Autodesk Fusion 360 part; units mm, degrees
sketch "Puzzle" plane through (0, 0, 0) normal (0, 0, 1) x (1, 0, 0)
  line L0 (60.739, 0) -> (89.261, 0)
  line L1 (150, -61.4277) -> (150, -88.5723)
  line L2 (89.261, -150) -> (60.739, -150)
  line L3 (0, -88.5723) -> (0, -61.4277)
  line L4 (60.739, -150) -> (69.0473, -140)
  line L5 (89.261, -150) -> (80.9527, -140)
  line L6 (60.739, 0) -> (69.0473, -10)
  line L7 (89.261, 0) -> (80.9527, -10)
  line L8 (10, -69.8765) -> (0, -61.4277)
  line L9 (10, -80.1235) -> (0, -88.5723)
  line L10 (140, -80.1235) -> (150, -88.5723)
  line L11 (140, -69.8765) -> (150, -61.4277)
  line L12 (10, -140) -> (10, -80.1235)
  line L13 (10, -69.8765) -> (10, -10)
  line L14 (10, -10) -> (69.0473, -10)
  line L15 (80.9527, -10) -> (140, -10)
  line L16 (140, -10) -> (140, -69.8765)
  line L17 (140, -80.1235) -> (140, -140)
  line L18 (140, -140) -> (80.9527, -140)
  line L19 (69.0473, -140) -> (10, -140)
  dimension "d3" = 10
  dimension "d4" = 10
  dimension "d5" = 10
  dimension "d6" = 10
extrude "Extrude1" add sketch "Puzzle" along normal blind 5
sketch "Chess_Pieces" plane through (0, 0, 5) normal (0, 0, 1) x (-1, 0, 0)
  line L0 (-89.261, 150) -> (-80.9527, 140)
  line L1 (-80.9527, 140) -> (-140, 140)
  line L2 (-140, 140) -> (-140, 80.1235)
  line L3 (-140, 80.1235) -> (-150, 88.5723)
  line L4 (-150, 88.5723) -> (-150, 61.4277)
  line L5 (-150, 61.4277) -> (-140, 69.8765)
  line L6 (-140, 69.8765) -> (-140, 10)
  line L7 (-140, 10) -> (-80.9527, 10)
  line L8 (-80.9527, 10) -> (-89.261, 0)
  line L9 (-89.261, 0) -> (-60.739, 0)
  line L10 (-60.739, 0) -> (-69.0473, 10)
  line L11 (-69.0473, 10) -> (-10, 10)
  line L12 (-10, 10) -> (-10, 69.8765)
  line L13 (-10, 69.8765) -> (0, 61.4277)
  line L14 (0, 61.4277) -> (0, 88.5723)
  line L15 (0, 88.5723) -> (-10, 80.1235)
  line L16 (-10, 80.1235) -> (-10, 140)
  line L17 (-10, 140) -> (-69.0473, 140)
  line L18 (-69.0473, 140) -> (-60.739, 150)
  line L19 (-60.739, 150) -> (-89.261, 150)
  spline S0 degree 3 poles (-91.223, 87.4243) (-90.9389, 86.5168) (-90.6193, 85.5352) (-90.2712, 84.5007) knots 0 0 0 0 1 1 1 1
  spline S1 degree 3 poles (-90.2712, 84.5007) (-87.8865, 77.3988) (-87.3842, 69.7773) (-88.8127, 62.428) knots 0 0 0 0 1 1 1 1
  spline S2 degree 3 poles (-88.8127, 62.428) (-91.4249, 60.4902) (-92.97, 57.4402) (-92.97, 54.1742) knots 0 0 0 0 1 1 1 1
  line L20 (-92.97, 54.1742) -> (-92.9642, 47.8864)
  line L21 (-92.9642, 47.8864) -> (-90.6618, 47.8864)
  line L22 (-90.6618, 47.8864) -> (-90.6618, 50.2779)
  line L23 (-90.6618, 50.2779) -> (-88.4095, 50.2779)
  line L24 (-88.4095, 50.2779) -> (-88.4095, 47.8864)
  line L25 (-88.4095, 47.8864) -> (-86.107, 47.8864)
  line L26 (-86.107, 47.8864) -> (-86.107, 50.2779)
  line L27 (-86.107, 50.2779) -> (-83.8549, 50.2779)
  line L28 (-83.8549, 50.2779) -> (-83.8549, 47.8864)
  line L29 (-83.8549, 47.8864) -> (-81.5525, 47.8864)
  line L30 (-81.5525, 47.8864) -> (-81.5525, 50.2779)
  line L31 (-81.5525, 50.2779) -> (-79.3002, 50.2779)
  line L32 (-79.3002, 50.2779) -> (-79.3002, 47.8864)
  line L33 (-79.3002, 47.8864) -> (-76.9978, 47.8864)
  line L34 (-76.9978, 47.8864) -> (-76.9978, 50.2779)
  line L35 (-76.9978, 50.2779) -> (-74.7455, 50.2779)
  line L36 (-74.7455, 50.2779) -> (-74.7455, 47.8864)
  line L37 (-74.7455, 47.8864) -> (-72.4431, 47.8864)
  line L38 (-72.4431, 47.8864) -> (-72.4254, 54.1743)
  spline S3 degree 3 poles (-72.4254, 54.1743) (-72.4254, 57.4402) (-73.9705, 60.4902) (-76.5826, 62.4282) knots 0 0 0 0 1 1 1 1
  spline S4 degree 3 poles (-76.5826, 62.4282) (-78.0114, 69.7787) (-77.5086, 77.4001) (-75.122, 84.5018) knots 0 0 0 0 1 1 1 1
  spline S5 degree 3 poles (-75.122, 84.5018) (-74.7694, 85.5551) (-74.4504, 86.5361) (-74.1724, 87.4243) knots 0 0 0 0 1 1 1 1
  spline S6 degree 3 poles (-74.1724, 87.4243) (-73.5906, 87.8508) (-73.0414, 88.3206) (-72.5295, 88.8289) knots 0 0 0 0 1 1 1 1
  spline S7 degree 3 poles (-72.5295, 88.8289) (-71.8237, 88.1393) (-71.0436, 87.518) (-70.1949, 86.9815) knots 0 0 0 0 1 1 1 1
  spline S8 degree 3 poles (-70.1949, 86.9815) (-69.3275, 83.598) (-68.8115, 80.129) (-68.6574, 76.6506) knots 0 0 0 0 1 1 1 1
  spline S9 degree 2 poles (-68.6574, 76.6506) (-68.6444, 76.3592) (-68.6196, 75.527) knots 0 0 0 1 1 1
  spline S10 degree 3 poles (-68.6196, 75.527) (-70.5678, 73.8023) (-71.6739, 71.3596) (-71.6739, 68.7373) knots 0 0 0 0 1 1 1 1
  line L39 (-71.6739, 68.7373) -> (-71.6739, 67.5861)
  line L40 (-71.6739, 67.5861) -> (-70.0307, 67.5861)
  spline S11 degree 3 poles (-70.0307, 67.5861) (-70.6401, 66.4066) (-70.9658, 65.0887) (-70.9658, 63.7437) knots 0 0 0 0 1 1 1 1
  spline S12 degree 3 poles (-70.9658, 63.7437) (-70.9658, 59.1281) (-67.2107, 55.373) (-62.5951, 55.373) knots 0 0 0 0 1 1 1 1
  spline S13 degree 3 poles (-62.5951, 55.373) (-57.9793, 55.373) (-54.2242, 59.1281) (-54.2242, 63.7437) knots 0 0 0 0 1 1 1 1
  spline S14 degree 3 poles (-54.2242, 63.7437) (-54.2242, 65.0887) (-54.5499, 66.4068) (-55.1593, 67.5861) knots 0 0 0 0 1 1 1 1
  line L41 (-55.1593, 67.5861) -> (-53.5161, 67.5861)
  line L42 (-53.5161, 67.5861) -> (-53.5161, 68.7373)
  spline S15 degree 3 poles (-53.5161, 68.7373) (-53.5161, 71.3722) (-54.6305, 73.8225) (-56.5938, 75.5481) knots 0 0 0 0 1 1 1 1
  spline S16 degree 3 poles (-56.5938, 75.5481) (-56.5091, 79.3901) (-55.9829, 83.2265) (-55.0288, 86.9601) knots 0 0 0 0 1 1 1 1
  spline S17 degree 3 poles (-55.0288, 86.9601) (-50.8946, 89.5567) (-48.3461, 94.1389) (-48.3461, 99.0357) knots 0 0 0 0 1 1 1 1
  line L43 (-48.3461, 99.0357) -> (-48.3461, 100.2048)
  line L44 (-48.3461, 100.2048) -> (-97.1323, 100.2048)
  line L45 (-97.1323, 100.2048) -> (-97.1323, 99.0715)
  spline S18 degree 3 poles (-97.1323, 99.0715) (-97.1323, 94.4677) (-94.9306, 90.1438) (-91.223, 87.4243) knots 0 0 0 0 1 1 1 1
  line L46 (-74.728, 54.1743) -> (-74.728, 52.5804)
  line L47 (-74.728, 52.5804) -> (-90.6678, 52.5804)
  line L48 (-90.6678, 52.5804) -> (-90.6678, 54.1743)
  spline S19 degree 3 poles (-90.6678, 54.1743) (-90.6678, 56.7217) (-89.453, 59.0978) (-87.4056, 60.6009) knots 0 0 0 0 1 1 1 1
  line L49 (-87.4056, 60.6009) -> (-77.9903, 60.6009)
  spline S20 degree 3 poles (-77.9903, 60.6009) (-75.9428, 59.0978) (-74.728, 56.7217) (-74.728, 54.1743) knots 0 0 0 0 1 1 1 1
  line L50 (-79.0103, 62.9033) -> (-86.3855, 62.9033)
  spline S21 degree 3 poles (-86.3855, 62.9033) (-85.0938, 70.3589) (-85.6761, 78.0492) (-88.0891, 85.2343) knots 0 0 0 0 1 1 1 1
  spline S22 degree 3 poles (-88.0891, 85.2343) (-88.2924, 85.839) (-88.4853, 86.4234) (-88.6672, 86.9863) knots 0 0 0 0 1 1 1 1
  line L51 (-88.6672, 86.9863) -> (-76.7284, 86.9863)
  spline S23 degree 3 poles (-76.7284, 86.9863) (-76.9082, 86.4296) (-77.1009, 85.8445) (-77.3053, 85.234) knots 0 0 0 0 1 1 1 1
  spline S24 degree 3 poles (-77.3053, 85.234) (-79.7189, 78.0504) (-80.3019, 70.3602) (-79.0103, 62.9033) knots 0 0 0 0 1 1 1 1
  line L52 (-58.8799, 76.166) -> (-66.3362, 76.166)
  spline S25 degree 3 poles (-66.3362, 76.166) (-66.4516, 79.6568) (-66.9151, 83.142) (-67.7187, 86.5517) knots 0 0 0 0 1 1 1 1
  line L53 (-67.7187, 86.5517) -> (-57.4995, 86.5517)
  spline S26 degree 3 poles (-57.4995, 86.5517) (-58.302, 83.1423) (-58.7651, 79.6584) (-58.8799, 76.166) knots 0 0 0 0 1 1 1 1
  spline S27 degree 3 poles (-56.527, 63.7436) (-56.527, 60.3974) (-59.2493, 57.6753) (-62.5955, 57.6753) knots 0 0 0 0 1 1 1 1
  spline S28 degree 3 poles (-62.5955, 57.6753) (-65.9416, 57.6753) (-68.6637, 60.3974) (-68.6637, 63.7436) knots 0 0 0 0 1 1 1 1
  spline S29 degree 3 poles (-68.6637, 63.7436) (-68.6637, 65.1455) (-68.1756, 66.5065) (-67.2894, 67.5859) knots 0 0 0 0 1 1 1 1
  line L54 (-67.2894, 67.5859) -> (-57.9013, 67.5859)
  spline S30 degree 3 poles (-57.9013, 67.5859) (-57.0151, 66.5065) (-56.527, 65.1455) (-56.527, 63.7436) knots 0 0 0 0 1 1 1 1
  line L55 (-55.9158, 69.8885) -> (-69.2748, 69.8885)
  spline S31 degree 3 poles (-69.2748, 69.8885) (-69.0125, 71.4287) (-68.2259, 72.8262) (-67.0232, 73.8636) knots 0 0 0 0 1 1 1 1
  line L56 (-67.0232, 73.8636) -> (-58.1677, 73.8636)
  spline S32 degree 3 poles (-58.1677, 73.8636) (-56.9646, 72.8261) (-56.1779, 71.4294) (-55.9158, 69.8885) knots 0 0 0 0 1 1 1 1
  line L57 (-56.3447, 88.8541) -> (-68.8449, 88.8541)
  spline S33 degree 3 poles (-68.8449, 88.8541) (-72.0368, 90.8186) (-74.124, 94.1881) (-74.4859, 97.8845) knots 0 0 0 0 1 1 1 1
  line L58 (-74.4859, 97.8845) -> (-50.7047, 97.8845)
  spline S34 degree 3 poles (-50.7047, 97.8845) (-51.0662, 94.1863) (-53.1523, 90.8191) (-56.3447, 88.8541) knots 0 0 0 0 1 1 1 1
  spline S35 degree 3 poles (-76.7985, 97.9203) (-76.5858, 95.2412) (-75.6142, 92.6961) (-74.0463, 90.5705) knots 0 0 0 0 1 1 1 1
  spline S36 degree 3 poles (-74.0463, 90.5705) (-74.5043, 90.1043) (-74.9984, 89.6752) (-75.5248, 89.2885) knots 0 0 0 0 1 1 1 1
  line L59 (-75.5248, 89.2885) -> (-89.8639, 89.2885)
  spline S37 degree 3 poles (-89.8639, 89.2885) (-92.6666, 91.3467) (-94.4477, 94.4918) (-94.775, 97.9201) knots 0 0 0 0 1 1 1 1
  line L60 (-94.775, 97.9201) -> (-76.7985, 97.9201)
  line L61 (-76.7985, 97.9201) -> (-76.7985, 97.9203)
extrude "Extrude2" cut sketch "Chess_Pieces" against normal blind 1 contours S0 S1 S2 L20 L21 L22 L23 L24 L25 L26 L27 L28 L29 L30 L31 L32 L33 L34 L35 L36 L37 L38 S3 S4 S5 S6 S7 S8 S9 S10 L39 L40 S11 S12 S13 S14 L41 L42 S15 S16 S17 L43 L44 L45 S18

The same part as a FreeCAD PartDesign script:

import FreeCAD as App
import Part
import Sketcher

V = App.Vector
Q = App.Units.Quantity

doc = App.newDocument("Part")
body = doc.addObject("PartDesign::Body", "Body")

# Sketch on XY plane
sketch1 = body.newObject("Sketcher::SketchObject", "Sketch")
sketch1.AttachmentSupport = (doc.getObject("XY_Plane"), [""])
sketch1.MapMode = "FlatFace"
sketch1.addGeometry(Part.LineSegment(V(89, 0, 0), V(61, 0, 0)), False)
sketch1.addGeometry(Part.LineSegment(V(61, 0, 0), V(69, -10, 0)), False)
sketch1.addGeometry(Part.LineSegment(V(69, -10, 0), V(10, -10, 0)), False)
sketch1.addGeometry(Part.LineSegment(V(10, -10, 0), V(10, -70, 0)), False)
sketch1.addGeometry(Part.LineSegment(V(10, -70, 0), V(0, -61, 0)), False)
sketch1.addGeometry(Part.LineSegment(V(0, -61, 0), V(0, -89, 0)), False)
sketch1.addGeometry(Part.LineSegment(V(0, -89, 0), V(10, -80, 0)), False)
sketch1.addGeometry(Part.LineSegment(V(10, -80, 0), V(10, -140, 0)), False)
sketch1.addGeometry(Part.LineSegment(V(10, -140, 0), V(69, -140, 0)), False)
sketch1.addGeometry(Part.LineSegment(V(69, -140, 0), V(61, -150, 0)), False)
sketch1.addGeometry(Part.LineSegment(V(61, -150, 0), V(89, -150, 0)), False)
sketch1.addGeometry(Part.LineSegment(V(89, -150, 0), V(81, -140, 0)), False)
sketch1.addGeometry(Part.LineSegment(V(81, -140, 0), V(140, -140, 0)), False)
sketch1.addGeometry(Part.LineSegment(V(140, -140, 0), V(140, -80, 0)), False)
sketch1.addGeometry(Part.LineSegment(V(140, -80, 0), V(150, -89, 0)), False)
sketch1.addGeometry(Part.LineSegment(V(150, -89, 0), V(150, -61, 0)), False)
sketch1.addGeometry(Part.LineSegment(V(150, -61, 0), V(140, -70, 0)), False)
sketch1.addGeometry(Part.LineSegment(V(140, -70, 0), V(140, -10, 0)), False)
sketch1.addGeometry(Part.LineSegment(V(140, -10, 0), V(81, -10, 0)), False)
sketch1.addGeometry(Part.LineSegment(V(81, -10, 0), V(89, 0, 0)), False)
sketch1.addConstraint(Sketcher.Constraint("Coincident", 0, 2, 1, 1))
sketch1.addConstraint(Sketcher.Constraint("Coincident", 1, 2, 2, 1))
sketch1.addConstraint(Sketcher.Constraint("Coincident", 2, 2, 3, 1))
sketch1.addConstraint(Sketcher.Constraint("Coincident", 3, 2, 4, 1))
sketch1.addConstraint(Sketcher.Constraint("Coincident", 4, 2, 5, 1))
sketch1.addConstraint(Sketcher.Constraint("Coincident", 5, 2, 6, 1))
sketch1.addConstraint(Sketcher.Constraint("Coincident", 6, 2, 7, 1))
sketch1.addConstraint(Sketcher.Constraint("Coincident", 7, 2, 8, 1))
sketch1.addConstraint(Sketcher.Constraint("Coincident", 8, 2, 9, 1))
sketch1.addConstraint(Sketcher.Constraint("Coincident", 9, 2, 10, 1))
sketch1.addConstraint(Sketcher.Constraint("Coincident", 10, 2, 11, 1))
sketch1.addConstraint(Sketcher.Constraint("Coincident", 11, 2, 12, 1))
sketch1.addConstraint(Sketcher.Constraint("Coincident", 12, 2, 13, 1))
sketch1.addConstraint(Sketcher.Constraint("Coincident", 13, 2, 14, 1))
sketch1.addConstraint(Sketcher.Constraint("Coincident", 14, 2, 15, 1))
sketch1.addConstraint(Sketcher.Constraint("Coincident", 15, 2, 16, 1))
sketch1.addConstraint(Sketcher.Constraint("Coincident", 16, 2, 17, 1))
sketch1.addConstraint(Sketcher.Constraint("Coincident", 17, 2, 18, 1))
sketch1.addConstraint(Sketcher.Constraint("Coincident", 18, 2, 19, 1))
sketch1.addConstraint(Sketcher.Constraint("Coincident", 19, 2, 0, 1))
sketch1.addConstraint(Sketcher.Constraint("Horizontal", 0))
sketch1.addConstraint(Sketcher.Constraint("Horizontal", 2))
sketch1.addConstraint(Sketcher.Constraint("Vertical", 3))
sketch1.addConstraint(Sketcher.Constraint("Vertical", 5))
sketch1.addConstraint(Sketcher.Constraint("Vertical", 7))
sketch1.addConstraint(Sketcher.Constraint("Horizontal", 8))
sketch1.addConstraint(Sketcher.Constraint("Horizontal", 10))
sketch1.addConstraint(Sketcher.Constraint("Horizontal", 12))
sketch1.addConstraint(Sketcher.Constraint("Vertical", 13))
sketch1.addConstraint(Sketcher.Constraint("Vertical", 15))
sketch1.addConstraint(Sketcher.Constraint("Vertical", 17))
sketch1.addConstraint(Sketcher.Constraint("Horizontal", 18))
sketch1.addConstraint(Sketcher.Constraint("PointOnObject", 0, 2, -1))
sketch1.addConstraint(Sketcher.Constraint("PointOnObject", 4, 2, -2))
sketch1.addConstraint(Sketcher.Constraint("Parallel", 1, 11))
sketch1.addConstraint(Sketcher.Constraint("Parallel", 4, 14))
sketch1.addConstraint(Sketcher.Constraint("Parallel", 6, 16))
sketch1.addConstraint(Sketcher.Constraint("Parallel", 9, 19))
sketch1.addConstraint(Sketcher.Constraint("Horizontal", 8, 2, 11, 2))
sketch1.addConstraint(Sketcher.Constraint("Horizontal", 6, 2, 13, 2))
sketch1.addConstraint(Sketcher.Constraint("Horizontal", 5, 2, 14, 2))
sketch1.addConstraint(Sketcher.Constraint("Horizontal", 4, 2, 15, 2))
sketch1.addConstraint(Sketcher.Constraint("Horizontal", 3, 2, 16, 2))
sketch1.addConstraint(Sketcher.Constraint("Horizontal", 2, 2, 17, 2))
sketch1.addConstraint(Sketcher.Constraint("Vertical", 3, 2, 6, 2))
sketch1.addConstraint(Sketcher.Constraint("Vertical", 1, 2, 8, 2))
sketch1.addConstraint(Sketcher.Constraint("Vertical", 0, 2, 9, 2))
sketch1.addConstraint(Sketcher.Constraint("Vertical", 13, 2, 16, 2))
sketch1.addConstraint(Sketcher.Constraint("Vertical", 11, 2, 18, 2))
sketch1.addConstraint(Sketcher.Constraint("Vertical", 10, 2, 19, 2))
sketch1.addConstraint(Sketcher.Constraint("Equal", 8, 12))
sketch1.addConstraint(Sketcher.Constraint("Equal", 3, 7))
sketch1.addConstraint(Sketcher.Constraint("DistanceY", 1, 2, -1, 1, 10.0))
sketch1.addConstraint(Sketcher.Constraint("DistanceX", -1, 1, 2, 2, 10.0))
sketch1.addConstraint(Sketcher.Constraint("DistanceY", 7, 2, -1, 1, 140.0))
sketch1.addConstraint(Sketcher.Constraint("DistanceX", -1, 1, 12, 2, 140.0))
sketch1.addConstraint(Sketcher.Constraint("Angle", 1, Q("-50.2792 deg")))
sketch1.addConstraint(Sketcher.Constraint("DistanceX", 0, 2, 0, 1, 28.522))
sketch1.addConstraint(Sketcher.Constraint("DistanceY", 3, 2, 3, 1, 59.8765))
sketch1.addConstraint(Sketcher.Constraint("DistanceY", 5, 2, 5, 1, 27.1446))
pad1 = body.newObject("PartDesign::Pad", "Pad")
pad1.Profile = sketch1
pad1.Length = 5

# Sketch on XY plane
sketch2 = body.newObject("Sketcher::SketchObject", "Sketch001")
sketch2.AttachmentSupport = (doc.getObject("XY_Plane"), [""])
sketch2.MapMode = "FlatFace"
sketch2.AttachmentOffset = App.Placement(V(0, 0, 5), App.Rotation())
sketch2.addGeometry(Part.BSplineCurve([V(97.1323, -99.0715, 0), V(97.1323, -94.4677, 0), V(94.9306, -90.1438, 0), V(91.223, -87.4243, 0)], [4, 4], [0, 1], False, 3, [1, 1, 1, 1], False), False)
sketch2.addGeometry(Part.BSplineCurve([V(91.223, -87.4243, 0), V(90.9389, -86.5168, 0), V(90.6193, -85.5352, 0), V(90.2712, -84.5007, 0)], [4, 4], [0, 1], False, 3, [1, 1, 1, 1], False), False)
sketch2.addGeometry(Part.BSplineCurve([V(90.2712, -84.5007, 0), V(87.8865, -77.3988, 0), V(87.3842, -69.7773, 0), V(88.8127, -62.428, 0)], [4, 4], [0, 1], False, 3, [1, 1, 1, 1], False), False)
sketch2.addGeometry(Part.BSplineCurve([V(88.8127, -62.428, 0), V(91.4249, -60.4902, 0), V(92.97, -57.4402, 0), V(92.97, -54.1742, 0)], [4, 4], [0, 1], False, 3, [1, 1, 1, 1], False), False)
sketch2.addGeometry(Part.LineSegment(V(92.97, -54.1742, 0), V(92.9642, -47.8864, 0)), False)
sketch2.addGeometry(Part.LineSegment(V(92.9642, -47.8864, 0), V(90.6618, -47.8864, 0)), False)
sketch2.addGeometry(Part.LineSegment(V(90.6618, -47.8864, 0), V(90.6618, -50.2779, 0)), False)
sketch2.addGeometry(Part.LineSegment(V(90.6618, -50.2779, 0), V(88.4095, -50.2779, 0)), False)
sketch2.addGeometry(Part.LineSegment(V(88.4095, -50.2779, 0), V(88.4095, -47.8864, 0)), False)
sketch2.addGeometry(Part.LineSegment(V(88.4095, -47.8864, 0), V(86.107, -47.8864, 0)), False)
sketch2.addGeometry(Part.LineSegment(V(86.107, -47.8864, 0), V(86.107, -50.2779, 0)), False)
sketch2.addGeometry(Part.LineSegment(V(86.107, -50.2779, 0), V(83.8549, -50.2779, 0)), False)
sketch2.addGeometry(Part.LineSegment(V(83.8549, -50.2779, 0), V(83.8549, -47.8864, 0)), False)
sketch2.addGeometry(Part.LineSegment(V(83.8549, -47.8864, 0), V(81.5525, -47.8864, 0)), False)
sketch2.addGeometry(Part.LineSegment(V(81.5525, -47.8864, 0), V(81.5525, -50.2779, 0)), False)
sketch2.addGeometry(Part.LineSegment(V(81.5525, -50.2779, 0), V(79.3002, -50.2779, 0)), False)
sketch2.addGeometry(Part.LineSegment(V(79.3002, -50.2779, 0), V(79.3002, -47.8864, 0)), False)
sketch2.addGeometry(Part.LineSegment(V(79.3002, -47.8864, 0), V(76.9978, -47.8864, 0)), False)
sketch2.addGeometry(Part.LineSegment(V(76.9978, -47.8864, 0), V(76.9978, -50.2779, 0)), False)
sketch2.addGeometry(Part.LineSegment(V(76.9978, -50.2779, 0), V(74.7455, -50.2779, 0)), False)
sketch2.addGeometry(Part.LineSegment(V(74.7455, -50.2779, 0), V(74.7455, -47.8864, 0)), False)
sketch2.addGeometry(Part.LineSegment(V(74.7455, -47.8864, 0), V(72.4431, -47.8864, 0)), False)
sketch2.addGeometry(Part.LineSegment(V(72.4431, -47.8864, 0), V(72.4254, -54.1743, 0)), False)
sketch2.addGeometry(Part.BSplineCurve([V(72.4254, -54.1743, 0), V(72.4254, -57.4402, 0), V(73.9705, -60.4902, 0), V(76.5826, -62.4282, 0)], [4, 4], [0, 1], False, 3, [1, 1, 1, 1], False), False)
sketch2.addGeometry(Part.BSplineCurve([V(76.5826, -62.4282, 0), V(78.0114, -69.7787, 0), V(77.5086, -77.4001, 0), V(75.122, -84.5018, 0)], [4, 4], [0, 1], False, 3, [1, 1, 1, 1], False), False)
sketch2.addGeometry(Part.BSplineCurve([V(75.122, -84.5018, 0), V(74.7694, -85.5551, 0), V(74.4504, -86.5361, 0), V(74.1724, -87.4243, 0)], [4, 4], [0, 1], False, 3, [1, 1, 1, 1], False), False)
sketch2.addGeometry(Part.BSplineCurve([V(74.1724, -87.4243, 0), V(73.5906, -87.8508, 0), V(73.0414, -88.3206, 0), V(72.5295, -88.8289, 0)], [4, 4], [0, 1], False, 3, [1, 1, 1, 1], False), False)
sketch2.addGeometry(Part.BSplineCurve([V(72.5295, -88.8289, 0), V(71.8237, -88.1393, 0), V(71.0436, -87.518, 0), V(70.1949, -86.9815, 0)], [4, 4], [0, 1], False, 3, [1, 1, 1, 1], False), False)
sketch2.addGeometry(Part.BSplineCurve([V(70.1949, -86.9815, 0), V(69.3275, -83.598, 0), V(68.8115, -80.129, 0), V(68.6574, -76.6506, 0)], [4, 4], [0, 1], False, 3, [1, 1, 1, 1], False), False)
sketch2.addGeometry(Part.BSplineCurve([V(68.6574, -76.6506, 0), V(68.6444, -76.3592, 0), V(68.6196, -75.527, 0)], [3, 3], [0, 1], False, 2, [1, 1, 1], False), False)
sketch2.addGeometry(Part.BSplineCurve([V(68.6196, -75.527, 0), V(70.5678, -73.8023, 0), V(71.6739, -71.3596, 0), V(71.6739, -68.7373, 0)], [4, 4], [0, 1], False, 3, [1, 1, 1, 1], False), False)
sketch2.addGeometry(Part.LineSegment(V(71.6739, -68.7373, 0), V(71.6739, -67.5861, 0)), False)
sketch2.addGeometry(Part.LineSegment(V(71.6739, -67.5861, 0), V(70.0307, -67.5861, 0)), False)
sketch2.addGeometry(Part.BSplineCurve([V(70.0307, -67.5861, 0), V(70.6401, -66.4066, 0), V(70.9658, -65.0887, 0), V(70.9658, -63.7437, 0)], [4, 4], [0, 1], False, 3, [1, 1, 1, 1], False), False)
sketch2.addGeometry(Part.BSplineCurve([V(70.9658, -63.7437, 0), V(70.9658, -59.1281, 0), V(67.2107, -55.373, 0), V(62.5951, -55.373, 0)], [4, 4], [0, 1], False, 3, [1, 1, 1, 1], False), False)
sketch2.addGeometry(Part.BSplineCurve([V(62.5951, -55.373, 0), V(57.9793, -55.373, 0), V(54.2242, -59.1281, 0), V(54.2242, -63.7437, 0)], [4, 4], [0, 1], False, 3, [1, 1, 1, 1], False), False)
sketch2.addGeometry(Part.BSplineCurve([V(54.2242, -63.7437, 0), V(54.2242, -65.0887, 0), V(54.5499, -66.4068, 0), V(55.1593, -67.5861, 0)], [4, 4], [0, 1], False, 3, [1, 1, 1, 1], False), False)
sketch2.addGeometry(Part.LineSegment(V(55.1593, -67.5861, 0), V(53.5161, -67.5861, 0)), False)
sketch2.addGeometry(Part.LineSegment(V(53.5161, -67.5861, 0), V(53.5161, -68.7373, 0)), False)
sketch2.addGeometry(Part.BSplineCurve([V(53.5161, -68.7373, 0), V(53.5161, -71.3722, 0), V(54.6305, -73.8225, 0), V(56.5938, -75.5481, 0)], [4, 4], [0, 1], False, 3, [1, 1, 1, 1], False), False)
sketch2.addGeometry(Part.BSplineCurve([V(56.5938, -75.5481, 0), V(56.5091, -79.3901, 0), V(55.9829, -83.2265, 0), V(55.0288, -86.9601, 0)], [4, 4], [0, 1], False, 3, [1, 1, 1, 1], False), False)
sketch2.addGeometry(Part.BSplineCurve([V(55.0288, -86.9601, 0), V(50.8946, -89.5567, 0), V(48.3461, -94.1389, 0), V(48.3461, -99.0357, 0)], [4, 4], [0, 1], False, 3, [1, 1, 1, 1], False), False)
sketch2.addGeometry(Part.LineSegment(V(48.3461, -99.0357, 0), V(48.3461, -100.2048, 0)), False)
sketch2.addGeometry(Part.LineSegment(V(48.3461, -100.2048, 0), V(97.1323, -100.2048, 0)), False)
sketch2.addGeometry(Part.LineSegment(V(97.1323, -100.2048, 0), V(97.1323, -99.0715, 0)), False)
sketch2.addGeometry(Part.BSplineCurve([V(77.9903, -60.6009, 0), V(75.9428, -59.0978, 0), V(74.728, -56.7217, 0), V(74.728, -54.1743, 0)], [4, 4], [0, 1], False, 3, [1, 1, 1, 1], False), False)
sketch2.addGeometry(Part.LineSegment(V(74.728, -54.1743, 0), V(74.728, -52.5804, 0)), False)
sketch2.addGeometry(Part.LineSegment(V(74.728, -52.5804, 0), V(90.6678, -52.5804, 0)), False)
sketch2.addGeometry(Part.LineSegment(V(90.6678, -52.5804, 0), V(90.6678, -54.1743, 0)), False)
sketch2.addGeometry(Part.BSplineCurve([V(90.6678, -54.1743, 0), V(90.6678, -56.7217, 0), V(89.453, -59.0978, 0), V(87.4056, -60.6009, 0)], [4, 4], [0, 1], False, 3, [1, 1, 1, 1], False), False)
sketch2.addGeometry(Part.LineSegment(V(87.4056, -60.6009, 0), V(77.9903, -60.6009, 0)), False)
sketch2.addGeometry(Part.BSplineCurve([V(77.3053, -85.234, 0), V(79.7189, -78.0504, 0), V(80.3019, -70.3602, 0), V(79.0103, -62.9033, 0)], [4, 4], [0, 1], False, 3, [1, 1, 1, 1], False), False)
sketch2.addGeometry(Part.LineSegment(V(79.0103, -62.9033, 0), V(86.3855, -62.9033, 0)), False)
sketch2.addGeometry(Part.BSplineCurve([V(86.3855, -62.9033, 0), V(85.0938, -70.3589, 0), V(85.6761, -78.0492, 0), V(88.0891, -85.2343, 0)], [4, 4], [0, 1], False, 3, [1, 1, 1, 1], False), False)
sketch2.addGeometry(Part.BSplineCurve([V(88.0891, -85.2343, 0), V(88.2924, -85.839, 0), V(88.4853, -86.4234, 0), V(88.6672, -86.9863, 0)], [4, 4], [0, 1], False, 3, [1, 1, 1, 1], False), False)
sketch2.addGeometry(Part.LineSegment(V(88.6672, -86.9863, 0), V(76.7284, -86.9863, 0)), False)
sketch2.addGeometry(Part.BSplineCurve([V(76.7284, -86.9863, 0), V(76.9082, -86.4296, 0), V(77.1009, -85.8445, 0), V(77.3053, -85.234, 0)], [4, 4], [0, 1], False, 3, [1, 1, 1, 1], False), False)
sketch2.addGeometry(Part.BSplineCurve([V(57.9013, -67.5859, 0), V(57.0151, -66.5065, 0), V(56.527, -65.1455, 0), V(56.527, -63.7436, 0)], [4, 4], [0, 1], False, 3, [1, 1, 1, 1], False), False)
sketch2.addGeometry(Part.BSplineCurve([V(56.527, -63.7436, 0), V(56.527, -60.3974, 0), V(59.2493, -57.6753, 0), V(62.5955, -57.6753, 0)], [4, 4], [0, 1], False, 3, [1, 1, 1, 1], False), False)
sketch2.addGeometry(Part.BSplineCurve([V(62.5955, -57.6753, 0), V(65.9416, -57.6753, 0), V(68.6637, -60.3974, 0), V(68.6637, -63.7436, 0)], [4, 4], [0, 1], False, 3, [1, 1, 1, 1], False), False)
sketch2.addGeometry(Part.BSplineCurve([V(68.6637, -63.7436, 0), V(68.6637, -65.1455, 0), V(68.1756, -66.5065, 0), V(67.2894, -67.5859, 0)], [4, 4], [0, 1], False, 3, [1, 1, 1, 1], False), False)
sketch2.addGeometry(Part.LineSegment(V(67.2894, -67.5859, 0), V(57.9013, -67.5859, 0)), False)
sketch2.addGeometry(Part.BSplineCurve([V(58.1677, -73.8636, 0), V(56.9646, -72.8261, 0), V(56.1779, -71.4294, 0), V(55.9158, -69.8885, 0)], [4, 4], [0, 1], False, 3, [1, 1, 1, 1], False), False)
sketch2.addGeometry(Part.LineSegment(V(55.9158, -69.8885, 0), V(69.2748, -69.8885, 0)), False)
sketch2.addGeometry(Part.BSplineCurve([V(69.2748, -69.8885, 0), V(69.0125, -71.4287, 0), V(68.2259, -72.8262, 0), V(67.0232, -73.8636, 0)], [4, 4], [0, 1], False, 3, [1, 1, 1, 1], False), False)
sketch2.addGeometry(Part.LineSegment(V(67.0232, -73.8636, 0), V(58.1677, -73.8636, 0)), False)
sketch2.addGeometry(Part.LineSegment(V(94.775, -97.9201, 0), V(76.7985, -97.9203, 0)), False)
sketch2.addGeometry(Part.BSplineCurve([V(76.7985, -97.9203, 0), V(76.5858, -95.2412, 0), V(75.6142, -92.6961, 0), V(74.0463, -90.5705, 0)], [4, 4], [0, 1], False, 3, [1, 1, 1, 1], False), False)
sketch2.addGeometry(Part.BSplineCurve([V(74.0463, -90.5705, 0), V(74.5043, -90.1043, 0), V(74.9984, -89.6752, 0), V(75.5248, -89.2885, 0)], [4, 4], [0, 1], False, 3, [1, 1, 1, 1], False), False)
sketch2.addGeometry(Part.LineSegment(V(75.5248, -89.2885, 0), V(89.8639, -89.2885, 0)), False)
sketch2.addGeometry(Part.BSplineCurve([V(89.8639, -89.2885, 0), V(92.6666, -91.3467, 0), V(94.4477, -94.4918, 0), V(94.775, -97.9201, 0)], [4, 4], [0, 1], False, 3, [1, 1, 1, 1], False), False)
sketch2.addGeometry(Part.BSplineCurve([V(57.4995, -86.5517, 0), V(58.302, -83.1423, 0), V(58.7651, -79.6584, 0), V(58.8799, -76.166, 0)], [4, 4], [0, 1], False, 3, [1, 1, 1, 1], False), False)
sketch2.addGeometry(Part.LineSegment(V(58.8799, -76.166, 0), V(66.3362, -76.166, 0)), False)
sketch2.addGeometry(Part.BSplineCurve([V(66.3362, -76.166, 0), V(66.4516, -79.6568, 0), V(66.9151, -83.142, 0), V(67.7187, -86.5517, 0)], [4, 4], [0, 1], False, 3, [1, 1, 1, 1], False), False)
sketch2.addGeometry(Part.LineSegment(V(67.7187, -86.5517, 0), V(57.4995, -86.5517, 0)), False)
sketch2.addGeometry(Part.BSplineCurve([V(50.7047, -97.8845, 0), V(51.0662, -94.1863, 0), V(53.1523, -90.8191, 0), V(56.3447, -88.8541, 0)], [4, 4], [0, 1], False, 3, [1, 1, 1, 1], False), False)
sketch2.addGeometry(Part.LineSegment(V(56.3447, -88.8541, 0), V(68.8449, -88.8541, 0)), False)
sketch2.addGeometry(Part.BSplineCurve([V(68.8449, -88.8541, 0), V(72.0368, -90.8186, 0), V(74.124, -94.1881, 0), V(74.4859, -97.8845, 0)], [4, 4], [0, 1], False, 3, [1, 1, 1, 1], False), False)
sketch2.addGeometry(Part.LineSegment(V(74.4859, -97.8845, 0), V(50.7047, -97.8845, 0)), False)
sketch2.addConstraint(Sketcher.Constraint("Block", 0))
sketch2.addConstraint(Sketcher.Constraint("Block", 1))
sketch2.addConstraint(Sketcher.Constraint("Block", 2))
sketch2.addConstraint(Sketcher.Constraint("Block", 3))
sketch2.addConstraint(Sketcher.Constraint("Block", 23))
sketch2.addConstraint(Sketcher.Constraint("Block", 24))
sketch2.addConstraint(Sketcher.Constraint("Block", 25))
sketch2.addConstraint(Sketcher.Constraint("Block", 26))
sketch2.addConstraint(Sketcher.Constraint("Block", 27))
sketch2.addConstraint(Sketcher.Constraint("Block", 28))
sketch2.addConstraint(Sketcher.Constraint("Block", 29))
sketch2.addConstraint(Sketcher.Constraint("Block", 30))
sketch2.addConstraint(Sketcher.Constraint("Block", 33))
sketch2.addConstraint(Sketcher.Constraint("Block", 34))
sketch2.addConstraint(Sketcher.Constraint("Block", 35))
sketch2.addConstraint(Sketcher.Constraint("Block", 36))
sketch2.addConstraint(Sketcher.Constraint("Block", 39))
sketch2.addConstraint(Sketcher.Constraint("Block", 40))
sketch2.addConstraint(Sketcher.Constraint("Block", 41))
sketch2.addConstraint(Sketcher.Constraint("Block", 45))
sketch2.addConstraint(Sketcher.Constraint("Block", 49))
sketch2.addConstraint(Sketcher.Constraint("Block", 51))
sketch2.addConstraint(Sketcher.Constraint("Block", 53))
sketch2.addConstraint(Sketcher.Constraint("Block", 54))
sketch2.addConstraint(Sketcher.Constraint("Block", 56))
sketch2.addConstraint(Sketcher.Constraint("Block", 57))
sketch2.addConstraint(Sketcher.Constraint("Block", 58))
sketch2.addConstraint(Sketcher.Constraint("Block", 59))
sketch2.addConstraint(Sketcher.Constraint("Block", 60))
sketch2.addConstraint(Sketcher.Constraint("Block", 62))
sketch2.addConstraint(Sketcher.Constraint("Block", 64))
sketch2.addConstraint(Sketcher.Constraint("Block", 67))
sketch2.addConstraint(Sketcher.Constraint("Block", 68))
sketch2.addConstraint(Sketcher.Constraint("Block", 70))
sketch2.addConstraint(Sketcher.Constraint("Block", 71))
sketch2.addConstraint(Sketcher.Constraint("Block", 73))
sketch2.addConstraint(Sketcher.Constraint("Block", 75))
sketch2.addConstraint(Sketcher.Constraint("Block", 77))
sketch2.addConstraint(Sketcher.Constraint("Coincident", 3, 2, 4, 1))
sketch2.addConstraint(Sketcher.Constraint("Coincident", 4, 2, 5, 1))
sketch2.addConstraint(Sketcher.Constraint("Coincident", 5, 2, 6, 1))
sketch2.addConstraint(Sketcher.Constraint("Coincident", 6, 2, 7, 1))
sketch2.addConstraint(Sketcher.Constraint("Coincident", 7, 2, 8, 1))
sketch2.addConstraint(Sketcher.Constraint("Coincident", 8, 2, 9, 1))
sketch2.addConstraint(Sketcher.Constraint("Coincident", 9, 2, 10, 1))
sketch2.addConstraint(Sketcher.Constraint("Coincident", 10, 2, 11, 1))
sketch2.addConstraint(Sketcher.Constraint("Coincident", 11, 2, 12, 1))
sketch2.addConstraint(Sketcher.Constraint("Coincident", 12, 2, 13, 1))
sketch2.addConstraint(Sketcher.Constraint("Coincident", 13, 2, 14, 1))
sketch2.addConstraint(Sketcher.Constraint("Coincident", 14, 2, 15, 1))
sketch2.addConstraint(Sketcher.Constraint("Coincident", 15, 2, 16, 1))
sketch2.addConstraint(Sketcher.Constraint("Coincident", 16, 2, 17, 1))
sketch2.addConstraint(Sketcher.Constraint("Coincident", 17, 2, 18, 1))
sketch2.addConstraint(Sketcher.Constraint("Coincident", 18, 2, 19, 1))
sketch2.addConstraint(Sketcher.Constraint("Coincident", 19, 2, 20, 1))
sketch2.addConstraint(Sketcher.Constraint("Coincident", 20, 2, 21, 1))
sketch2.addConstraint(Sketcher.Constraint("Coincident", 21, 2, 22, 1))
sketch2.addConstraint(Sketcher.Constraint("Coincident", 22, 2, 23, 1))
sketch2.addConstraint(Sketcher.Constraint("Coincident", 30, 2, 31, 1))
sketch2.addConstraint(Sketcher.Constraint("Coincident", 31, 2, 32, 1))
sketch2.addConstraint(Sketcher.Constraint("Coincident", 32, 2, 33, 1))
sketch2.addConstraint(Sketcher.Constraint("Coincident", 36, 2, 37, 1))
sketch2.addConstraint(Sketcher.Constraint("Coincident", 37, 2, 38, 1))
sketch2.addConstraint(Sketcher.Constraint("Coincident", 38, 2, 39, 1))
sketch2.addConstraint(Sketcher.Constraint("Coincident", 41, 2, 42, 1))
sketch2.addConstraint(Sketcher.Constraint("Coincident", 42, 2, 43, 1))
sketch2.addConstraint(Sketcher.Constraint("Coincident", 43, 2, 44, 1))
sketch2.addConstraint(Sketcher.Constraint("Coincident", 44, 2, 0, 1))
sketch2.addConstraint(Sketcher.Constraint("Coincident", 45, 2, 46, 1))
sketch2.addConstraint(Sketcher.Constraint("Coincident", 46, 2, 47, 1))
sketch2.addConstraint(Sketcher.Constraint("Coincident", 47, 2, 48, 1))
sketch2.addConstraint(Sketcher.Constraint("Coincident", 48, 2, 49, 1))
sketch2.addConstraint(Sketcher.Constraint("Coincident", 49, 2, 50, 1))
sketch2.addConstraint(Sketcher.Constraint("Coincident", 50, 2, 45, 1))
sketch2.addConstraint(Sketcher.Constraint("Coincident", 51, 2, 52, 1))
sketch2.addConstraint(Sketcher.Constraint("Coincident", 52, 2, 53, 1))
sketch2.addConstraint(Sketcher.Constraint("Coincident", 54, 2, 55, 1))
sketch2.addConstraint(Sketcher.Constraint("Coincident", 55, 2, 56, 1))
sketch2.addConstraint(Sketcher.Constraint("Coincident", 60, 2, 61, 1))
sketch2.addConstraint(Sketcher.Constraint("Coincident", 61, 2, 57, 1))
sketch2.addConstraint(Sketcher.Constraint("Coincident", 62, 2, 63, 1))
sketch2.addConstraint(Sketcher.Constraint("Coincident", 63, 2, 64, 1))
sketch2.addConstraint(Sketcher.Constraint("Coincident", 64, 2, 65, 1))
sketch2.addConstraint(Sketcher.Constraint("Coincident", 65, 2, 62, 1))
sketch2.addConstraint(Sketcher.Constraint("Coincident", 66, 2, 67, 1))
sketch2.addConstraint(Sketcher.Constraint("Coincident", 68, 2, 69, 1))
sketch2.addConstraint(Sketcher.Constraint("Coincident", 69, 2, 70, 1))
sketch2.addConstraint(Sketcher.Constraint("Coincident", 70, 2, 66, 1))
sketch2.addConstraint(Sketcher.Constraint("Coincident", 71, 2, 72, 1))
sketch2.addConstraint(Sketcher.Constraint("Coincident", 72, 2, 73, 1))
sketch2.addConstraint(Sketcher.Constraint("Coincident", 73, 2, 74, 1))
sketch2.addConstraint(Sketcher.Constraint("Coincident", 74, 2, 71, 1))
sketch2.addConstraint(Sketcher.Constraint("Coincident", 75, 2, 76, 1))
sketch2.addConstraint(Sketcher.Constraint("Coincident", 76, 2, 77, 1))
sketch2.addConstraint(Sketcher.Constraint("Coincident", 77, 2, 78, 1))
sketch2.addConstraint(Sketcher.Constraint("Coincident", 78, 2, 75, 1))
sketch2.addConstraint(Sketcher.Constraint("Horizontal", 5))
sketch2.addConstraint(Sketcher.Constraint("Vertical", 6))
sketch2.addConstraint(Sketcher.Constraint("Horizontal", 7))
sketch2.addConstraint(Sketcher.Constraint("Vertical", 8))
sketch2.addConstraint(Sketcher.Constraint("Horizontal", 9))
sketch2.addConstraint(Sketcher.Constraint("Vertical", 10))
sketch2.addConstraint(Sketcher.Constraint("Horizontal", 11))
sketch2.addConstraint(Sketcher.Constraint("Vertical", 12))
sketch2.addConstraint(Sketcher.Constraint("Horizontal", 13))
sketch2.addConstraint(Sketcher.Constraint("Vertical", 14))
sketch2.addConstraint(Sketcher.Constraint("Horizontal", 15))
sketch2.addConstraint(Sketcher.Constraint("Vertical", 16))
sketch2.addConstraint(Sketcher.Constraint("Horizontal", 17))
sketch2.addConstraint(Sketcher.Constraint("Vertical", 18))
sketch2.addConstraint(Sketcher.Constraint("Horizontal", 19))
sketch2.addConstraint(Sketcher.Constraint("Vertical", 20))
sketch2.addConstraint(Sketcher.Constraint("Horizontal", 21))
sketch2.addConstraint(Sketcher.Constraint("Vertical", 31))
sketch2.addConstraint(Sketcher.Constraint("Horizontal", 32))
sketch2.addConstraint(Sketcher.Constraint("Horizontal", 37))
sketch2.addConstraint(Sketcher.Constraint("Vertical", 38))
sketch2.addConstraint(Sketcher.Constraint("Vertical", 42))
sketch2.addConstraint(Sketcher.Constraint("Horizontal", 43))
sketch2.addConstraint(Sketcher.Constraint("Vertical", 44))
sketch2.addConstraint(Sketcher.Constraint("Vertical", 46))
sketch2.addConstraint(Sketcher.Constraint("Horizontal", 47))
sketch2.addConstraint(Sketcher.Constraint("Vertical", 48))
sketch2.addConstraint(Sketcher.Constraint("DistanceX", 11, 2, 11, 1, 2.252))
sketch2.addConstraint(Sketcher.Constraint("DistanceY", 42, 2, 42, 1, 1.169))
sketch2.addConstraint(Sketcher.Constraint("DistanceY", 46, 1, 46, 2, 1.594))
sketch2.addConstraint(Sketcher.Constraint("DistanceX", 22, 2, 19, 2, 2.32))
sketch2.addConstraint(Sketcher.Constraint("DistanceX", 50, 2, 15, 2, 1.31))
sketch2.addConstraint(Sketcher.Constraint("Distance", 22, 6.288))
sketch2.addConstraint(Sketcher.Constraint("DistanceX", 5, 2, 5, 1, 2.3024))
sketch2.addConstraint(Sketcher.Constraint("DistanceX", 7, 2, 7, 1, 2.2523))
sketch2.addConstraint(Sketcher.Constraint("DistanceX", 9, 2, 9, 1, 2.3025))
sketch2.addConstraint(Sketcher.Constraint("DistanceX", 13, 2, 13, 1, 2.3024))
sketch2.addConstraint(Sketcher.Constraint("DistanceX", 15, 2, 15, 1, 2.2523))
sketch2.addConstraint(Sketcher.Constraint("DistanceX", 17, 2, 17, 1, 2.3024))
sketch2.addConstraint(Sketcher.Constraint("DistanceX", 21, 2, 21, 1, 2.3024))
sketch2.addConstraint(Sketcher.Constraint("DistanceY", 6, 2, 6, 1, 2.3915))
sketch2.addConstraint(Sketcher.Constraint("DistanceY", 8, 1, 8, 2, 2.3915))
sketch2.addConstraint(Sketcher.Constraint("DistanceY", 10, 2, 10, 1, 2.3915))
sketch2.addConstraint(Sketcher.Constraint("DistanceY", 12, 1, 12, 2, 2.3915))
sketch2.addConstraint(Sketcher.Constraint("DistanceY", 14, 2, 14, 1, 2.3915))
sketch2.addConstraint(Sketcher.Constraint("DistanceY", 16, 1, 16, 2, 2.3915))
sketch2.addConstraint(Sketcher.Constraint("DistanceY", 18, 2, 18, 1, 2.3915))
sketch2.addConstraint(Sketcher.Constraint("DistanceY", 20, 1, 20, 2, 2.3915))
pocket1 = body.newObject("PartDesign::Pocket", "Pocket")
pocket1.Profile = sketch2
pocket1.Length = 1

doc.recompute()
